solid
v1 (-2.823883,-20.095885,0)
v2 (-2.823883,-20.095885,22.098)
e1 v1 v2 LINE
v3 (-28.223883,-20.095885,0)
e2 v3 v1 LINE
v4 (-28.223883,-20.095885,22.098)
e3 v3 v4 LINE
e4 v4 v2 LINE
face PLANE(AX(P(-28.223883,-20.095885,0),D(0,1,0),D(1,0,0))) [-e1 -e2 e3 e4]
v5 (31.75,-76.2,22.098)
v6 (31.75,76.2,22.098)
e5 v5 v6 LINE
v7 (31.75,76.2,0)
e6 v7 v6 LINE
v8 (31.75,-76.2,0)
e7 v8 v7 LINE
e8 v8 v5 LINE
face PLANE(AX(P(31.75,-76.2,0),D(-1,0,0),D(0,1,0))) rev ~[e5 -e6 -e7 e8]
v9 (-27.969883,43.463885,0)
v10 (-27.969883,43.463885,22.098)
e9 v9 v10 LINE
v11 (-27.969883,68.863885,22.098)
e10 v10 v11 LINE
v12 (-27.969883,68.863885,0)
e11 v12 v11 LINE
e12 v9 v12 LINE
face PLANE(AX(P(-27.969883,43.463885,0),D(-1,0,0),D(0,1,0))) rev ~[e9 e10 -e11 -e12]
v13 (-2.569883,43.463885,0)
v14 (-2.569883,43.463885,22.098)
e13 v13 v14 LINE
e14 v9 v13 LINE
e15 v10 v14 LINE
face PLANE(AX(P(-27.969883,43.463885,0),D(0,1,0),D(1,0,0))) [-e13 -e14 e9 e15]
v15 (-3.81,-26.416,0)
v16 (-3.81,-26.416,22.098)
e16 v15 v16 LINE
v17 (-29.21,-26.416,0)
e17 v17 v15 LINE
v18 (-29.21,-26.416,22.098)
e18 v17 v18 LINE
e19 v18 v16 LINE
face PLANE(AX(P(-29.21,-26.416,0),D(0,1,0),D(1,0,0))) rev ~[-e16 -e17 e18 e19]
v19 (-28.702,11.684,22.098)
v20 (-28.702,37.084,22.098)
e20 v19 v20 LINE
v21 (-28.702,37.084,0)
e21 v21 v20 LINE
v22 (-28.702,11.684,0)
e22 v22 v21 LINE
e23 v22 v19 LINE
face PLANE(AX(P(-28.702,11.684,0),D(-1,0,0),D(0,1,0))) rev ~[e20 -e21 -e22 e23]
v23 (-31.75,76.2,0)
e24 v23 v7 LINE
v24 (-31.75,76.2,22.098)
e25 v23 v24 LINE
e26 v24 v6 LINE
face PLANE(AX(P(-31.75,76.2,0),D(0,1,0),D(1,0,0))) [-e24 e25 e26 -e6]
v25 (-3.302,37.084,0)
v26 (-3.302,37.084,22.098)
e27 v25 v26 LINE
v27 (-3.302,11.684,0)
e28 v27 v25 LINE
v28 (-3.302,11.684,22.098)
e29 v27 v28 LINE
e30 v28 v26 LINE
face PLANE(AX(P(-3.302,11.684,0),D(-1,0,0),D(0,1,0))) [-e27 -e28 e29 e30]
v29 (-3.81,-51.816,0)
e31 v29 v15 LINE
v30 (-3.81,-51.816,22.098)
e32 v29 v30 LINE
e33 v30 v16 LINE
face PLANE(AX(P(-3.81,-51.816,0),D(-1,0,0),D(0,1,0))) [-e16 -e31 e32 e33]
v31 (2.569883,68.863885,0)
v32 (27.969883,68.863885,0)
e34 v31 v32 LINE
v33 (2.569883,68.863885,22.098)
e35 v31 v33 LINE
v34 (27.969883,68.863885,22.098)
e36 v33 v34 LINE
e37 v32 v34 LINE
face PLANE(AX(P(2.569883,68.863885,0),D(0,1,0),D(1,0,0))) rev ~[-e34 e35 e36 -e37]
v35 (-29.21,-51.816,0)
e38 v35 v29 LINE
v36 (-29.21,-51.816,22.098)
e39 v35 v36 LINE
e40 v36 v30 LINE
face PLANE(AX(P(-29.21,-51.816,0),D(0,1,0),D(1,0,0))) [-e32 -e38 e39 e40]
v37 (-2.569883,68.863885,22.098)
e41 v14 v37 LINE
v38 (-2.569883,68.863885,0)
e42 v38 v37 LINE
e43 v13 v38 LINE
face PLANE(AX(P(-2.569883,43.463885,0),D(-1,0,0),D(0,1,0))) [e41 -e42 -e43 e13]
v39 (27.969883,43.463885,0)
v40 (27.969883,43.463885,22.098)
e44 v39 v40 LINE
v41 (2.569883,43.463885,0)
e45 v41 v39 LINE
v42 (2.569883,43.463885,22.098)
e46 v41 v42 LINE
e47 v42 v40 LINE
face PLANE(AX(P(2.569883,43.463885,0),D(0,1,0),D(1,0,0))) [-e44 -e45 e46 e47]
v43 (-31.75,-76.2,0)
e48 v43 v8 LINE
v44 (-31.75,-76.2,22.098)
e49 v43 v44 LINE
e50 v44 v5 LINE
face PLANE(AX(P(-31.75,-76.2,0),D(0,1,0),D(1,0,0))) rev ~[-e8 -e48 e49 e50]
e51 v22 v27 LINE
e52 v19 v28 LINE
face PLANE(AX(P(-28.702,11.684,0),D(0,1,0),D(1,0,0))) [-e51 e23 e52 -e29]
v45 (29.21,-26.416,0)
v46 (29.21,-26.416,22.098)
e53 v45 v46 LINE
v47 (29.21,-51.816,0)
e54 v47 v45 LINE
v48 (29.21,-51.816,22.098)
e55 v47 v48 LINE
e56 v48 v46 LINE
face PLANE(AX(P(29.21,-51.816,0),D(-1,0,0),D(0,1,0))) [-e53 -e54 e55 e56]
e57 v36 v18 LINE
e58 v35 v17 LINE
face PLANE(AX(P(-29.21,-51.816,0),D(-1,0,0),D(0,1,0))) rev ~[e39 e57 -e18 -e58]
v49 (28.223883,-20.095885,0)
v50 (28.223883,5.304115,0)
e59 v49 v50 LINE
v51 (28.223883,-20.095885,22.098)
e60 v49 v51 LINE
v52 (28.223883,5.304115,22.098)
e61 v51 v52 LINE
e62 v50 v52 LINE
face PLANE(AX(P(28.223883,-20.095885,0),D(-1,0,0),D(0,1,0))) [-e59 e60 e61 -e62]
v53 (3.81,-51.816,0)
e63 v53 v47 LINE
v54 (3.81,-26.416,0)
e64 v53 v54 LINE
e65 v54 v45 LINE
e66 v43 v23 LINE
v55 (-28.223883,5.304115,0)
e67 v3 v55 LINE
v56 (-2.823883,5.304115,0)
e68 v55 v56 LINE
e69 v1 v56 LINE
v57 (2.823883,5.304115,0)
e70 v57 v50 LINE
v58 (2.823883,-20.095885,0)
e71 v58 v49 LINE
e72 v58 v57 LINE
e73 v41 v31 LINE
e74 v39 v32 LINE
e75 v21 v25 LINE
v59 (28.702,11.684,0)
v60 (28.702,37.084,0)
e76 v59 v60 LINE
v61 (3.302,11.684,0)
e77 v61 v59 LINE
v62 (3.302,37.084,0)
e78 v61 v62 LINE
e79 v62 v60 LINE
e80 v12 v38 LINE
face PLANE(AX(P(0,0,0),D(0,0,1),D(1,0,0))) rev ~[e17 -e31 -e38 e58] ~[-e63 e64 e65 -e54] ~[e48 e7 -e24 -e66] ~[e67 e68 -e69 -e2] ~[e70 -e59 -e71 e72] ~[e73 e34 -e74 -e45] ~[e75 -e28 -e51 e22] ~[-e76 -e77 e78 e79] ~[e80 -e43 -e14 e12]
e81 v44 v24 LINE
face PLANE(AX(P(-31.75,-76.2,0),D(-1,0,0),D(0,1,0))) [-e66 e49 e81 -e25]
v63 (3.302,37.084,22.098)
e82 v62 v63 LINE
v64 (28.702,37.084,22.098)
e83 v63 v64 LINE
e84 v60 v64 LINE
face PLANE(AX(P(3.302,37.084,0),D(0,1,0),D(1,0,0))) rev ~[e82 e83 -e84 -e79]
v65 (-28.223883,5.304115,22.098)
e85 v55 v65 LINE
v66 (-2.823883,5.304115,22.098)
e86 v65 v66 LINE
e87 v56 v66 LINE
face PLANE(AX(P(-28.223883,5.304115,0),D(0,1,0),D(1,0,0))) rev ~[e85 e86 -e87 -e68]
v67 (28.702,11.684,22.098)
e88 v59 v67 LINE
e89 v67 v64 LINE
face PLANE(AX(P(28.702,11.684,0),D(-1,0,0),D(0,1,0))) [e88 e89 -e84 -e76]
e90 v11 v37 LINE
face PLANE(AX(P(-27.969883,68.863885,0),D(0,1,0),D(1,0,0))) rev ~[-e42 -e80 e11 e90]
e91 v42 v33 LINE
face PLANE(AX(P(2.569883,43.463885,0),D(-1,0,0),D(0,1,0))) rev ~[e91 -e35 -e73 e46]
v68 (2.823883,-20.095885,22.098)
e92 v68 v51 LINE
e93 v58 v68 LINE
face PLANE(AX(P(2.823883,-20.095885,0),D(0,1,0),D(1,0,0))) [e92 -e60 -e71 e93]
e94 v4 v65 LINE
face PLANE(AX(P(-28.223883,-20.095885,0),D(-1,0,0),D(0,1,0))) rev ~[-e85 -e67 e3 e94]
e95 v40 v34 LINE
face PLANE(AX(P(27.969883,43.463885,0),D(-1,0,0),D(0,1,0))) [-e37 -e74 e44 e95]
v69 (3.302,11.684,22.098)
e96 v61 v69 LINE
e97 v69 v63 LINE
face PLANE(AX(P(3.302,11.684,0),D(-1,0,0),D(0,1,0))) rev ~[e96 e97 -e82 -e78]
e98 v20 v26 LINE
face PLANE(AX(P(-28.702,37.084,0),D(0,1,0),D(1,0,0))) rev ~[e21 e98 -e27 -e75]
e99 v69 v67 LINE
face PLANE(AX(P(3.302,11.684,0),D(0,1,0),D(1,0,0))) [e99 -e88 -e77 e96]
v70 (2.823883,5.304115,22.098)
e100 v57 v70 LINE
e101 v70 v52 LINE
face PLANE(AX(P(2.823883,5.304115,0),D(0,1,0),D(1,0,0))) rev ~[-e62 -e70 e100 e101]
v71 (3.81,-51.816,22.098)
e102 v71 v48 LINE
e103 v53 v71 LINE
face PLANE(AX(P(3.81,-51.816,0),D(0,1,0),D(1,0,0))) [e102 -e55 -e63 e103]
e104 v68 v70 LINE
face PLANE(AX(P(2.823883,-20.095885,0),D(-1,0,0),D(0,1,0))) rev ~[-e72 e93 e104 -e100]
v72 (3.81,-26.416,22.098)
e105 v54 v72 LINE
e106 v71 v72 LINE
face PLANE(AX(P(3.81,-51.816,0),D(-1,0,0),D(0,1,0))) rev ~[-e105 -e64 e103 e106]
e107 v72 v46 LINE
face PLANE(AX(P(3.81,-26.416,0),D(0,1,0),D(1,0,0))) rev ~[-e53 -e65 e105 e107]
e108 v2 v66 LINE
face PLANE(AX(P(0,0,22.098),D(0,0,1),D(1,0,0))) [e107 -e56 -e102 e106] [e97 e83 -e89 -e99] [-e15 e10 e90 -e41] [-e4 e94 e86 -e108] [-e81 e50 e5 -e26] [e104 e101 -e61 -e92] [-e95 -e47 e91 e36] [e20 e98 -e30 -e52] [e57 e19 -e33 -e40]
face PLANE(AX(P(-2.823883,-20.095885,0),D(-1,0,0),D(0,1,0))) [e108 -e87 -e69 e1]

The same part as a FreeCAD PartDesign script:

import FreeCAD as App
import Part
import Sketcher
Q = App.Units.Quantity

doc = App.newDocument("Part")
body = doc.addObject("PartDesign::Body", "Body")

# Sketch on XY plane
sketch1 = body.newObject("Sketcher::SketchObject", "Sketch")
sketch1.AttachmentSupport = (doc.getObject("XY_Plane"), [""])
sketch1.MapMode = "FlatFace"
sketch1.addGeometry(Part.LineSegment(App.Vector(-31.75, 76.2, 0), App.Vector(-31.75, -76.2, 0)), False)
sketch1.addGeometry(Part.LineSegment(App.Vector(-31.75, -76.2, 0), App.Vector(31.75, -76.2, 0)), False)
sketch1.addGeometry(Part.LineSegment(App.Vector(31.75, -76.2, 0), App.Vector(31.75, 76.2, 0)), False)
sketch1.addGeometry(Part.LineSegment(App.Vector(31.75, 76.2, 0), App.Vector(-31.75, 76.2, 0)), False)
sketch1.addGeometry(Part.LineSegment(App.Vector(-3.81, -51.816, 0), App.Vector(-29.21, -51.816, 0)), False)
sketch1.addGeometry(Part.LineSegment(App.Vector(-29.21, -51.816, 0), App.Vector(-29.21, -26.416, 0)), False)
sketch1.addGeometry(Part.LineSegment(App.Vector(-29.21, -26.416, 0), App.Vector(-3.81, -26.416, 0)), False)
sketch1.addGeometry(Part.LineSegment(App.Vector(-3.81, -26.416, 0), App.Vector(-3.81, -51.816, 0)), False)
sketch1.addGeometry(Part.LineSegment(App.Vector(-2.823883, -20.095885, 0), App.Vector(-28.223883, -20.095885, 0)), False)
sketch1.addGeometry(Part.LineSegment(App.Vector(-28.223883, -20.095885, 0), App.Vector(-28.223883, 5.304115, 0)), False)
sketch1.addGeometry(Part.LineSegment(App.Vector(-28.223883, 5.304115, 0), App.Vector(-2.823883, 5.304115, 0)), False)
sketch1.addGeometry(Part.LineSegment(App.Vector(-2.823883, 5.304115, 0), App.Vector(-2.823883, -20.095885, 0)), False)
sketch1.addGeometry(Part.LineSegment(App.Vector(29.21, -51.816, 0), App.Vector(3.81, -51.816, 0)), False)
sketch1.addGeometry(Part.LineSegment(App.Vector(3.81, -51.816, 0), App.Vector(3.81, -26.416, 0)), False)
sketch1.addGeometry(Part.LineSegment(App.Vector(3.81, -26.416, 0), App.Vector(29.21, -26.416, 0)), False)
sketch1.addGeometry(Part.LineSegment(App.Vector(29.21, -26.416, 0), App.Vector(29.21, -51.816, 0)), False)
sketch1.addGeometry(Part.LineSegment(App.Vector(28.223883, -20.095885, 0), App.Vector(2.823883, -20.095885, 0)), False)
sketch1.addGeometry(Part.LineSegment(App.Vector(2.823883, -20.095885, 0), App.Vector(2.823883, 5.304115, 0)), False)
sketch1.addGeometry(Part.LineSegment(App.Vector(2.823883, 5.304115, 0), App.Vector(28.223883, 5.304115, 0)), False)
sketch1.addGeometry(Part.LineSegment(App.Vector(28.223883, 5.304115, 0), App.Vector(28.223883, -20.095885, 0)), False)
sketch1.addGeometry(Part.LineSegment(App.Vector(-3.302, 11.684, 0), App.Vector(-28.702, 11.684, 0)), False)
sketch1.addGeometry(Part.LineSegment(App.Vector(-28.702, 11.684, 0), App.Vector(-28.702, 37.084, 0)), False)
sketch1.addGeometry(Part.LineSegment(App.Vector(-28.702, 37.084, 0), App.Vector(-3.302, 37.084, 0)), False)
sketch1.addGeometry(Part.LineSegment(App.Vector(-3.302, 37.084, 0), App.Vector(-3.302, 11.684, 0)), False)
sketch1.addGeometry(Part.LineSegment(App.Vector(-2.569883, 43.463885, 0), App.Vector(-27.969883, 43.463885, 0)), False)
sketch1.addGeometry(Part.LineSegment(App.Vector(-27.969883, 43.463885, 0), App.Vector(-27.969883, 68.863885, 0)), False)
sketch1.addGeometry(Part.LineSegment(App.Vector(-27.969883, 68.863885, 0), App.Vector(-2.569883, 68.863885, 0)), False)
sketch1.addGeometry(Part.LineSegment(App.Vector(-2.569883, 68.863885, 0), App.Vector(-2.569883, 43.463885, 0)), False)
sketch1.addGeometry(Part.LineSegment(App.Vector(28.702, 11.684, 0), App.Vector(3.302, 11.684, 0)), False)
sketch1.addGeometry(Part.LineSegment(App.Vector(3.302, 11.684, 0), App.Vector(3.302, 37.084, 0)), False)
sketch1.addGeometry(Part.LineSegment(App.Vector(3.302, 37.084, 0), App.Vector(28.702, 37.084, 0)), False)
sketch1.addGeometry(Part.LineSegment(App.Vector(28.702, 37.084, 0), App.Vector(28.702, 11.684, 0)), False)
sketch1.addGeometry(Part.LineSegment(App.Vector(27.969883, 43.463885, 0), App.Vector(2.569883, 43.463885, 0)), False)
sketch1.addGeometry(Part.LineSegment(App.Vector(2.569883, 43.463885, 0), App.Vector(2.569883, 68.863885, 0)), False)
sketch1.addGeometry(Part.LineSegment(App.Vector(2.569883, 68.863885, 0), App.Vector(27.969883, 68.863885, 0)), False)
sketch1.addGeometry(Part.LineSegment(App.Vector(27.969883, 68.863885, 0), App.Vector(27.969883, 43.463885, 0)), False)
sketch1.addConstraint(Sketcher.Constraint("Coincident", 0, 2, 1, 1))
sketch1.addConstraint(Sketcher.Constraint("Coincident", 1, 2, 2, 1))
sketch1.addConstraint(Sketcher.Constraint("Coincident", 2, 2, 3, 1))
sketch1.addConstraint(Sketcher.Constraint("Coincident", 3, 2, 0, 1))
sketch1.addConstraint(Sketcher.Constraint("Coincident", 4, 2, 5, 1))
sketch1.addConstraint(Sketcher.Constraint("Coincident", 5, 2, 6, 1))
sketch1.addConstraint(Sketcher.Constraint("Coincident", 6, 2, 7, 1))
sketch1.addConstraint(Sketcher.Constraint("Coincident", 7, 2, 4, 1))
sketch1.addConstraint(Sketcher.Constraint("Coincident", 8, 2, 9, 1))
sketch1.addConstraint(Sketcher.Constraint("Coincident", 9, 2, 10, 1))
sketch1.addConstraint(Sketcher.Constraint("Coincident", 10, 2, 11, 1))
sketch1.addConstraint(Sketcher.Constraint("Coincident", 11, 2, 8, 1))
sketch1.addConstraint(Sketcher.Constraint("Coincident", 12, 2, 13, 1))
sketch1.addConstraint(Sketcher.Constraint("Coincident", 13, 2, 14, 1))
sketch1.addConstraint(Sketcher.Constraint("Coincident", 14, 2, 15, 1))
sketch1.addConstraint(Sketcher.Constraint("Coincident", 15, 2, 12, 1))
sketch1.addConstraint(Sketcher.Constraint("Coincident", 16, 2, 17, 1))
sketch1.addConstraint(Sketcher.Constraint("Coincident", 17, 2, 18, 1))
sketch1.addConstraint(Sketcher.Constraint("Coincident", 18, 2, 19, 1))
sketch1.addConstraint(Sketcher.Constraint("Coincident", 19, 2, 16, 1))
sketch1.addConstraint(Sketcher.Constraint("Coincident", 20, 2, 21, 1))
sketch1.addConstraint(Sketcher.Constraint("Coincident", 21, 2, 22, 1))
sketch1.addConstraint(Sketcher.Constraint("Coincident", 22, 2, 23, 1))
sketch1.addConstraint(Sketcher.Constraint("Coincident", 23, 2, 20, 1))
sketch1.addConstraint(Sketcher.Constraint("Coincident", 24, 2, 25, 1))
sketch1.addConstraint(Sketcher.Constraint("Coincident", 25, 2, 26, 1))
sketch1.addConstraint(Sketcher.Constraint("Coincident", 26, 2, 27, 1))
sketch1.addConstraint(Sketcher.Constraint("Coincident", 27, 2, 24, 1))
sketch1.addConstraint(Sketcher.Constraint("Coincident", 28, 2, 29, 1))
sketch1.addConstraint(Sketcher.Constraint("Coincident", 29, 2, 30, 1))
sketch1.addConstraint(Sketcher.Constraint("Coincident", 30, 2, 31, 1))
sketch1.addConstraint(Sketcher.Constraint("Coincident", 31, 2, 28, 1))
sketch1.addConstraint(Sketcher.Constraint("Coincident", 32, 2, 33, 1))
sketch1.addConstraint(Sketcher.Constraint("Coincident", 33, 2, 34, 1))
sketch1.addConstraint(Sketcher.Constraint("Coincident", 34, 2, 35, 1))
sketch1.addConstraint(Sketcher.Constraint("Coincident", 35, 2, 32, 1))
sketch1.addConstraint(Sketcher.Constraint("Vertical", 0))
sketch1.addConstraint(Sketcher.Constraint("Horizontal", 1))
sketch1.addConstraint(Sketcher.Constraint("Vertical", 2))
sketch1.addConstraint(Sketcher.Constraint("Horizontal", 3))
sketch1.addConstraint(Sketcher.Constraint("Horizontal", 4))
sketch1.addConstraint(Sketcher.Constraint("Vertical", 5))
sketch1.addConstraint(Sketcher.Constraint("Horizontal", 6))
sketch1.addConstraint(Sketcher.Constraint("Vertical", 7))
sketch1.addConstraint(Sketcher.Constraint("Horizontal", 8))
sketch1.addConstraint(Sketcher.Constraint("Vertical", 9))
sketch1.addConstraint(Sketcher.Constraint("Horizontal", 10))
sketch1.addConstraint(Sketcher.Constraint("Vertical", 11))
sketch1.addConstraint(Sketcher.Constraint("Horizontal", 12))
sketch1.addConstraint(Sketcher.Constraint("Vertical", 13))
sketch1.addConstraint(Sketcher.Constraint("Horizontal", 14))
sketch1.addConstraint(Sketcher.Constraint("Vertical", 15))
sketch1.addConstraint(Sketcher.Constraint("Horizontal", 16))
sketch1.addConstraint(Sketcher.Constraint("Vertical", 17))
sketch1.addConstraint(Sketcher.Constraint("Horizontal", 18))
sketch1.addConstraint(Sketcher.Constraint("Vertical", 19))
sketch1.addConstraint(Sketcher.Constraint("Horizontal", 20))
sketch1.addConstraint(Sketcher.Constraint("Vertical", 21))
sketch1.addConstraint(Sketcher.Constraint("Horizontal", 22))
sketch1.addConstraint(Sketcher.Constraint("Vertical", 23))
sketch1.addConstraint(Sketcher.Constraint("Horizontal", 24))
sketch1.addConstraint(Sketcher.Constraint("Vertical", 25))
sketch1.addConstraint(Sketcher.Constraint("Horizontal", 26))
sketch1.addConstraint(Sketcher.Constraint("Vertical", 27))
sketch1.addConstraint(Sketcher.Constraint("Horizontal", 28))
sketch1.addConstraint(Sketcher.Constraint("Vertical", 29))
sketch1.addConstraint(Sketcher.Constraint("Horizontal", 30))
sketch1.addConstraint(Sketcher.Constraint("Vertical", 31))
sketch1.addConstraint(Sketcher.Constraint("Horizontal", 32))
sketch1.addConstraint(Sketcher.Constraint("Vertical", 33))
sketch1.addConstraint(Sketcher.Constraint("Horizontal", 34))
sketch1.addConstraint(Sketcher.Constraint("Vertical", 35))
sketch1.addConstraint(Sketcher.Constraint("Symmetric", 0, 2, 2, 2, -1, 1))
sketch1.addConstraint(Sketcher.Constraint("Symmetric", 7, 2, 12, 2, -2))
sketch1.addConstraint(Sketcher.Constraint("Symmetric", 5, 2, 14, 2, -2))
sketch1.addConstraint(Sketcher.Constraint("Symmetric", 11, 2, 16, 2, -2))
sketch1.addConstraint(Sketcher.Constraint("Symmetric", 9, 2, 18, 2, -2))
sketch1.addConstraint(Sketcher.Constraint("Symmetric", 23, 2, 28, 2, -2))
sketch1.addConstraint(Sketcher.Constraint("Symmetric", 21, 2, 30, 2, -2))
sketch1.addConstraint(Sketcher.Constraint("Symmetric", 27, 2, 32, 2, -2))
sketch1.addConstraint(Sketcher.Constraint("Symmetric", 25, 2, 34, 2, -2))
sketch1.addConstraint(Sketcher.Constraint("Equal", 6, 8))
sketch1.addConstraint(Sketcher.Constraint("Equal", 18, 20))
sketch1.addConstraint(Sketcher.Constraint("Equal", 22, 24))
sketch1.addConstraint(Sketcher.Constraint("Equal", 34, 5))
sketch1.addConstraint(Sketcher.Constraint("Equal", 7, 9))
sketch1.addConstraint(Sketcher.Constraint("Equal", 19, 21))
sketch1.addConstraint(Sketcher.Constraint("Equal", 23, 25))
sketch1.addConstraint(Sketcher.Constraint("DistanceX", 4, 2, 4, 1, Q("1 in")))
sketch1.addConstraint(Sketcher.Constraint("DistanceY", 0, 2, 0, 1, Q("6 in")))
sketch1.addConstraint(Sketcher.Constraint("DistanceX", 1, 1, 1, 2, Q("2.5 in")))
sketch1.addConstraint(Sketcher.Constraint("DistanceX", 0, 2, 4, 2, Q("0.1 in")))
sketch1.addConstraint(Sketcher.Constraint("DistanceY", 5, 2, 20, 2, Q("1.5 in")))
sketch1.addConstraint(Sketcher.Constraint("DistanceY", 4, 2, -1, 1, Q("2.04 in")))
sketch1.addConstraint(Sketcher.Constraint("DistanceX", 20, 2, -1, 1, Q("1.13 in")))
sketch1.addConstraint(Sketcher.Constraint("DistanceX", 9, 2, 24, 2, Q("0.01 in")))
sketch1.addConstraint(Sketcher.Constraint("DistanceY", 9, 2, 24, 2, Q("38.15977 mm")))
sketch1.addConstraint(Sketcher.Constraint("DistanceX", 8, 2, -1, 1, Q("28.223883 mm")))
sketch1.addConstraint(Sketcher.Constraint("DistanceY", 8, 2, -1, 1, Q("20.095885 mm")))
pad1 = body.newObject("PartDesign::Pad", "Pad")
pad1.Profile = sketch1
pad1.Length = Q("0.87 in")

doc.recompute()
